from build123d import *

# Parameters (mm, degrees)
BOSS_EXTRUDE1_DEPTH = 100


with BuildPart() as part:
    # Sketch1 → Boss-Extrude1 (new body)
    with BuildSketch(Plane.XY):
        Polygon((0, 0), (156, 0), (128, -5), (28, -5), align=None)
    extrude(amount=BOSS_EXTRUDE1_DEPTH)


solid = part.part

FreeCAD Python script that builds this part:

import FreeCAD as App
import Part
import Sketcher

V = App.Vector
Q = App.Units.Quantity

doc = App.newDocument("Part")
body = doc.addObject("PartDesign::Body", "Body")

sketch1 = body.newObject("Sketcher::SketchObject", "Sketch")
sketch1.AttachmentSupport = (doc.getObject("XY_Plane"), [""])
sketch1.MapMode = "FlatFace"
sketch1.addGeometry([
    Part.LineSegment(V(156, 0, 0), V(0, 0, 0)),
    Part.LineSegment(V(0, 0, 0), V(28, -5, 0)),
    Part.LineSegment(V(28, -5, 0), V(128, -5, 0)),
    Part.LineSegment(V(128, -5, 0), V(156, 0, 0)),
], False)
sketch1.addConstraint([
    Sketcher.Constraint("Coincident", 0, 2, 1, 1),
    Sketcher.Constraint("Coincident", 1, 2, 2, 1),
    Sketcher.Constraint("Coincident", 2, 2, 3, 1),
    Sketcher.Constraint("Coincident", 3, 2, 0, 1),
    Sketcher.Constraint("Horizontal", 0),
    Sketcher.Constraint("Horizontal", 2),
    Sketcher.Constraint("Coincident", 0, 2, -1, 1),
    Sketcher.Constraint("Equal", 1, 3),
    Sketcher.Constraint("DistanceX", 0, 2, 0, 1, Q("156 mm")),
    Sketcher.Constraint("DistanceX", 2, 1, 2, 2, Q("100 mm")),
    Sketcher.Constraint("DistanceY", 1, 2, -1, 1, Q("5 mm")),
])
pad1 = body.newObject("PartDesign::Pad", "Pad")
pad1.Profile = sketch1
pad1.Length = 100

doc.recompute()
